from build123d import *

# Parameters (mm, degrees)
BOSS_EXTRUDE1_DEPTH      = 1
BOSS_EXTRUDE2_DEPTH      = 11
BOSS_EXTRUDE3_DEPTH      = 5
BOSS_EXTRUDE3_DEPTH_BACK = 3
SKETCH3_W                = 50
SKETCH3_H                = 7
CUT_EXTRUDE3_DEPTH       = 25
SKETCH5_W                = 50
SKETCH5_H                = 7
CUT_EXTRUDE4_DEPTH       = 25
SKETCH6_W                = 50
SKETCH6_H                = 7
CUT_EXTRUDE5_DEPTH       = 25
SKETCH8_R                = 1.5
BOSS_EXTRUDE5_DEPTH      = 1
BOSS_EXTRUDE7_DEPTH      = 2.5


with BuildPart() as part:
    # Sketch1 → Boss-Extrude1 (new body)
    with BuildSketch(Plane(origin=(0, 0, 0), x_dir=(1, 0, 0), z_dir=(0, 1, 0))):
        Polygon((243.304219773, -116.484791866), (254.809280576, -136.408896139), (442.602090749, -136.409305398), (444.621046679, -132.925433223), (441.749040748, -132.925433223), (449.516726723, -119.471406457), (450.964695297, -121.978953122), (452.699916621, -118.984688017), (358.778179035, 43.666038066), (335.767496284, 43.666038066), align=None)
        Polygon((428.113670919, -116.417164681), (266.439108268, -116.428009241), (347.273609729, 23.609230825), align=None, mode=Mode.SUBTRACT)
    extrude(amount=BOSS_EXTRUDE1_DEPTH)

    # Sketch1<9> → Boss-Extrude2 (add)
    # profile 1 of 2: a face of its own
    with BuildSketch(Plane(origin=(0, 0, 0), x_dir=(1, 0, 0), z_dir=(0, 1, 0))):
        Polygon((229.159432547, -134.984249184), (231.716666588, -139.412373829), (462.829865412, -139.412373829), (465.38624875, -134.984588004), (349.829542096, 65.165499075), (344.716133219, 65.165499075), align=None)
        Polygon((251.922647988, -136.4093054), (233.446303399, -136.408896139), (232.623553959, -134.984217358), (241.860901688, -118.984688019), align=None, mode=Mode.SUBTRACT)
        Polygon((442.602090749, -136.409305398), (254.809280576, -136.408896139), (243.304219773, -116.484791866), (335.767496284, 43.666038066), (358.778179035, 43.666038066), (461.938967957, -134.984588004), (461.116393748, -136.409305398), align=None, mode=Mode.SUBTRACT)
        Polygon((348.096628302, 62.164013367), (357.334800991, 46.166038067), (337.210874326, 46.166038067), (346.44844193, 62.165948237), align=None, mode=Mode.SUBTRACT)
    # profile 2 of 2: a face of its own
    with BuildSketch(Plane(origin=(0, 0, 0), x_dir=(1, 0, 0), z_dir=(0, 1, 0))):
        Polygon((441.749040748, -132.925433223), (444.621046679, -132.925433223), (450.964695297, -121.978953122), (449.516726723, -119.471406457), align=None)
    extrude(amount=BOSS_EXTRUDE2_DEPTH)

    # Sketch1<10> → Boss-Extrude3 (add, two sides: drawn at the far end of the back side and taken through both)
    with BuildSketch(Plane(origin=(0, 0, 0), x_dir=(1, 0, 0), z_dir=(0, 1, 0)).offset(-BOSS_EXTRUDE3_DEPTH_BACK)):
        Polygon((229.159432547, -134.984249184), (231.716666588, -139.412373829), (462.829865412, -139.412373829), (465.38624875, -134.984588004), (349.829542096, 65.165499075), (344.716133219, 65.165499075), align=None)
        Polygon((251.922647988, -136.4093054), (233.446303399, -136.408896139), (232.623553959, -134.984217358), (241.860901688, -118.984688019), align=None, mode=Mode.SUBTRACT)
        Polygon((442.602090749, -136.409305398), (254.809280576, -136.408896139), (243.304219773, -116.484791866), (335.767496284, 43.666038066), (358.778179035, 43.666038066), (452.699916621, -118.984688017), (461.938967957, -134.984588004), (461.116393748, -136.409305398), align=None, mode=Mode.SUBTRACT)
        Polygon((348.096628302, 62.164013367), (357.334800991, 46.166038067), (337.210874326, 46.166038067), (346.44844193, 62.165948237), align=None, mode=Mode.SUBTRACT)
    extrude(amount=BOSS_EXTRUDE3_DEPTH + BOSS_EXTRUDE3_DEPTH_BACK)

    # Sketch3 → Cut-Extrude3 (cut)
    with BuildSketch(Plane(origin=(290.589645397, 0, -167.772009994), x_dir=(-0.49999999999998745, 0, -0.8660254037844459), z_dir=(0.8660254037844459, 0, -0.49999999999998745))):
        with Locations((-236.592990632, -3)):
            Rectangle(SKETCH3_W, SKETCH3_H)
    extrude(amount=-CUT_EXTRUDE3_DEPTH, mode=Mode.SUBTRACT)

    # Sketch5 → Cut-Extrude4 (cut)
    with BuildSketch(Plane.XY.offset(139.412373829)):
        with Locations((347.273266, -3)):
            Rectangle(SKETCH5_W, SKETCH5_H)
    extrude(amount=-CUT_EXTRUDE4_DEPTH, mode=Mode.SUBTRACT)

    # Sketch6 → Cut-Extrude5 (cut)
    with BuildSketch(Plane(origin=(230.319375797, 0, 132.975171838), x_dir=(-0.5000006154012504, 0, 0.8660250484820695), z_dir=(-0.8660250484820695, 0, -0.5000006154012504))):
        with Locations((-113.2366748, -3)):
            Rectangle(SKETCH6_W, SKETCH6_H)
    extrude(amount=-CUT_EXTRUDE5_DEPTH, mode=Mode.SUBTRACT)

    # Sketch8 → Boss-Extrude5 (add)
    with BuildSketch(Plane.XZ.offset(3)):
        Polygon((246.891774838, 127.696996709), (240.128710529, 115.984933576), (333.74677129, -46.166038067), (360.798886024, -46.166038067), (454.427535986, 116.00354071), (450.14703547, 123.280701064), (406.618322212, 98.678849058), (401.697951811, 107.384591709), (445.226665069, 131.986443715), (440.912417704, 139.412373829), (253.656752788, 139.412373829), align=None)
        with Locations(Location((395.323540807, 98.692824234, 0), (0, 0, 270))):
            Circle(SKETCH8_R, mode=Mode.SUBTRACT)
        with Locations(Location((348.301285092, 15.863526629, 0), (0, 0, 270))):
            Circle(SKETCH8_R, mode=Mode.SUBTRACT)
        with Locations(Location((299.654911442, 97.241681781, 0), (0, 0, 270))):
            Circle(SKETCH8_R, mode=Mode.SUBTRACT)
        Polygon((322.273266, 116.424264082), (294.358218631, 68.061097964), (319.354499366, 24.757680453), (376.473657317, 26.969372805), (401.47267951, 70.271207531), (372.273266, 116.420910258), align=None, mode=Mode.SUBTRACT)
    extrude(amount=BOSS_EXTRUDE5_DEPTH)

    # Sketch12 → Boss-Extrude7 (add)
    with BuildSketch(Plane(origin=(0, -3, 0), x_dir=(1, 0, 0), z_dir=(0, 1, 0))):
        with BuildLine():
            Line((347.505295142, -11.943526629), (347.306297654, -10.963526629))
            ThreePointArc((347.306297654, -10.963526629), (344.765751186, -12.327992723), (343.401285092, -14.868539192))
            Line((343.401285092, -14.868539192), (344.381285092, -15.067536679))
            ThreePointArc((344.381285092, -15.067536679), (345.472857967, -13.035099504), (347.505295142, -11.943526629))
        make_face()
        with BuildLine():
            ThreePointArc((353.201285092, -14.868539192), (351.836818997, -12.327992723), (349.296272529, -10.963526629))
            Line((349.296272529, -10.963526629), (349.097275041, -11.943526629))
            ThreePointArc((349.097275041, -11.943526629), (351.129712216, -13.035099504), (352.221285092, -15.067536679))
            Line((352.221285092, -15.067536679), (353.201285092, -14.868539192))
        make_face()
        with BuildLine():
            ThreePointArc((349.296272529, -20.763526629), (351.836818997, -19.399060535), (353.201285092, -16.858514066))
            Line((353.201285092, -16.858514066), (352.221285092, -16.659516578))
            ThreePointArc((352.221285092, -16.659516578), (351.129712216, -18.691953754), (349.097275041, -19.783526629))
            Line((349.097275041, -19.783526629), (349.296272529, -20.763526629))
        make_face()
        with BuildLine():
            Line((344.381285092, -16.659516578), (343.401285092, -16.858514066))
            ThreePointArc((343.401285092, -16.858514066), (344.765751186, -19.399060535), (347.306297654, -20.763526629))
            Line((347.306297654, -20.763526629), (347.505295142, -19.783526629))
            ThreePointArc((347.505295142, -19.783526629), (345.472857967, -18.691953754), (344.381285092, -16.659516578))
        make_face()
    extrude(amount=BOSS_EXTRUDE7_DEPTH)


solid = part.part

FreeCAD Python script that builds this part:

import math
import FreeCAD as App
import Part
import Sketcher
Q = App.Units.Quantity


def add_polygon(sketch, points):
    """Adds a closed chain of lines whose ends are joined by coincident constraints."""
    first, n = sketch.GeometryCount, len(points)
    for a, b in zip(points, points[1:] + points[:1]):
        sketch.addGeometry(Part.LineSegment(App.Vector(*a, 0), App.Vector(*b, 0)), False)
    for i in range(n):
        sketch.addConstraint(Sketcher.Constraint("Coincident", first + i, 2, first + (i + 1) % n, 1))

doc = App.newDocument("Part")
body = doc.addObject("PartDesign::Body", "Body")

# Sketch on XZ plane
sketch1 = doc.addObject("Sketcher::SketchObject", "Sketch")
body.addObject(sketch1)
sketch1.AttachmentSupport = (doc.XZ_Plane, [""])
sketch1.MapMode = "FlatFace"
add_polygon(sketch1, [(243.30422, 116.484792), (254.809281, 136.408896), (442.602091, 136.409305), (444.621047, 132.925433), (441.749041, 132.925433), (449.516727, 119.471406), (450.964695, 121.978953), (452.699917, 118.984688), (358.778179, -43.666038), (335.767496, -43.666038)])  # lines 0-9
add_polygon(sketch1, [(347.27361, -23.609231), (428.113671, 116.417165), (266.439108, 116.428009)])  # lines 10-12
sketch1.addConstraint([
    Sketcher.Constraint("Horizontal", 3),
    Sketcher.Constraint("Horizontal", 8),
    Sketcher.Constraint("Parallel", 0, 5),
    Sketcher.Constraint("Parallel", 2, 6),
    Sketcher.Constraint("Parallel", 5, 7),
    Sketcher.Constraint("Parallel", 4, 9),
    Sketcher.Constraint("Angle", 4, Q("-60 deg")),
    Sketcher.Constraint("DistanceY", 4, 2, 1, 2, Q("16.937899 mm")),
    Sketcher.Constraint("DistanceX", 8, 2, 5, 2, Q("115.197199 mm")),
    Sketcher.Constraint("DistanceX", 11, 2, 12, 2, Q("80.834501 mm")),
    Sketcher.Constraint("Distance", 0, Q("23.007311 mm")),
    Sketcher.Constraint("Distance", 1, Q("187.79281 mm")),
    Sketcher.Constraint("Distance", 4, Q("15.535372 mm")),
    Sketcher.Constraint("Distance", 7, Q("187.82053 mm")),
    Sketcher.Constraint("Distance", 12, Q("161.693059 mm")),
    Sketcher.Constraint("DistanceX", 3, 2, 3, 1, Q("2.872006 mm")),
    Sketcher.Constraint("DistanceX", 8, 2, 8, 1, Q("23.010683 mm")),
    Sketcher.Constraint("DistanceX", -1, 1, 0, 2, Q("254.809281 mm")),
    Sketcher.Constraint("DistanceX", -1, 1, 3, 2, Q("441.749041 mm")),
    Sketcher.Constraint("DistanceY", -1, 1, 6, 2, Q("118.984688 mm")),
    Sketcher.Constraint("DistanceX", -1, 1, 7, 2, Q("358.778179 mm")),
    Sketcher.Constraint("DistanceY", 7, 2, -1, 1, Q("43.666038 mm")),
    Sketcher.Constraint("DistanceX", -1, 1, 10, 2, Q("428.113671 mm")),
    Sketcher.Constraint("DistanceX", -1, 1, 11, 2, Q("266.439108 mm")),
    Sketcher.Constraint("DistanceY", -1, 1, 11, 2, Q("116.428009 mm")),
    Sketcher.Constraint("DistanceY", 10, 2, 3, 2, Q("16.508269 mm")),
])
pad1 = doc.addObject("PartDesign::Pad", "Pad")
body.addObject(pad1)
pad1.Profile = sketch1
pad1.Length = 1
pad1.Reversed = True

# Sketch on XZ plane
sketch2 = doc.addObject("Sketcher::SketchObject", "Sketch001")
body.addObject(sketch2)
sketch2.AttachmentSupport = (doc.XZ_Plane, [""])
sketch2.MapMode = "FlatFace"
add_polygon(sketch2, [(229.159433, 134.984249), (231.716667, 139.412374), (462.829865, 139.412374), (465.386249, 134.984588), (349.829542, -65.165499), (344.716133, -65.165499)])  # lines 0-5
add_polygon(sketch2, [(241.860902, 118.984688), (251.922648, 136.409305), (233.446303, 136.408896), (232.623554, 134.984217)])  # lines 6-9
add_polygon(sketch2, [(461.116394, 136.409305), (442.602091, 136.409305), (254.809281, 136.408896), (243.30422, 116.484792), (335.767496, -43.666038), (358.778179, -43.666038), (461.938968, 134.984588)])  # lines 10-16
add_polygon(sketch2, [(346.448442, -62.165948), (348.096628, -62.164013), (357.334801, -46.166038), (337.210874, -46.166038)])  # lines 17-20
add_polygon(sketch2, [(441.749041, 132.925433), (444.621047, 132.925433), (450.964695, 121.978953), (449.516727, 119.471406)])  # lines 21-24
sketch2.addConstraint([
    Sketcher.Constraint("Horizontal", 1),
    Sketcher.Constraint("Horizontal", 4),
    Sketcher.Constraint("Horizontal", 10),
    Sketcher.Constraint("Horizontal", 14),
    Sketcher.Constraint("Horizontal", 19),
    Sketcher.Constraint("Horizontal", 21),
    Sketcher.Constraint("DistanceY", 18, 2, 14, 2, Q("2.5 mm")),
    Sketcher.Constraint("DistanceX", 1, 1, 1, 2, Q("231.113199 mm")),
    Sketcher.Constraint("DistanceX", 4, 2, 4, 1, Q("5.113409 mm")),
    Sketcher.Constraint("DistanceY", 3, 2, -1, 1, Q("65.165499 mm")),
    Sketcher.Constraint("DistanceX", -1, 1, 9, 2, Q("241.860902 mm")),
    Sketcher.Constraint("DistanceX", -1, 1, 18, 2, Q("357.334801 mm")),
    Sketcher.Constraint("DistanceX", 5, 2, 4, 2, Q("115.556701 mm")),
    Sketcher.Constraint("DistanceX", 6, 2, 2, 2, Q("213.463601 mm")),
    Sketcher.Constraint("DistanceX", 7, 2, 9, 2, Q("8.414598 mm")),
    Sketcher.Constraint("DistanceX", 20, 2, 3, 2, Q("3.3811 mm")),
    Sketcher.Constraint("DistanceX", 22, 2, 16, 2, Q("10.151698 mm")),
    Sketcher.Constraint("DistanceY", 23, 2, 10, 2, Q("16.937899 mm")),
    Sketcher.Constraint("Distance", 11, Q("187.79281 mm")),
    Sketcher.Constraint("Distance", 12, Q("23.007311 mm")),
    Sketcher.Constraint("Distance", 16, Q("1.645129 mm")),
    Sketcher.Constraint("Distance", 18, Q("18.473739 mm")),
    Sketcher.Constraint("Distance", 22, Q("12.651771 mm")),
    Sketcher.Constraint("Distance", 24, Q("15.535372 mm")),
    Sketcher.Constraint("DistanceX", 10, 2, 10, 1, Q("18.514303 mm")),
    Sketcher.Constraint("DistanceX", 14, 1, 14, 2, Q("23.010683 mm")),
    Sketcher.Constraint("DistanceX", 19, 2, 19, 1, Q("20.123927 mm")),
    Sketcher.Constraint("DistanceX", 21, 1, 21, 2, Q("2.872006 mm")),
    Sketcher.Constraint("DistanceX", -1, 1, 2, 2, Q("465.386249 mm")),
    Sketcher.Constraint("DistanceY", -1, 1, 2, 2, Q("134.984588 mm")),
    Sketcher.Constraint("DistanceY", -1, 1, 5, 2, Q("134.984249 mm")),
    Sketcher.Constraint("DistanceY", -1, 1, 9, 2, Q("118.984688 mm")),
    Sketcher.Constraint("DistanceX", -1, 1, 10, 2, Q("442.602091 mm")),
    Sketcher.Constraint("DistanceX", -1, 1, 12, 2, Q("243.30422 mm")),
    Sketcher.Constraint("DistanceY", -1, 1, 12, 2, Q("116.484792 mm")),
    Sketcher.Constraint("DistanceY", 13, 2, -1, 1, Q("43.666038 mm")),
    Sketcher.Constraint("DistanceX", -1, 1, 14, 2, Q("358.778179 mm")),
    Sketcher.Constraint("DistanceY", -1, 1, 15, 2, Q("134.984588 mm")),
    Sketcher.Constraint("DistanceX", -1, 1, 17, 2, Q("348.096628 mm")),
    Sketcher.Constraint("DistanceX", -1, 1, 20, 2, Q("346.448442 mm")),
    Sketcher.Constraint("DistanceY", 20, 2, -1, 1, Q("62.165948 mm")),
    Sketcher.Constraint("DistanceX", -1, 1, 24, 2, Q("441.749041 mm")),
    Sketcher.Constraint("DistanceX", 0, 2, 6, 2, Q("20.205981 mm")),
    Sketcher.Constraint("DistanceY", 6, 2, 0, 2, Q("3.003068 mm")),
    Sketcher.Constraint("DistanceY", 7, 2, 6, 2, Q("0.000409 mm")),
    Sketcher.Constraint("DistanceX", 8, 2, 7, 2, Q("0.822749 mm")),
    Sketcher.Constraint("DistanceY", 8, 2, 7, 2, Q("1.424679 mm")),
    Sketcher.Constraint("DistanceY", 9, 2, 8, 2, Q("15.999529 mm")),
    Sketcher.Constraint("DistanceY", 10, 2, 1, 2, Q("3.003068 mm")),
    Sketcher.Constraint("DistanceY", 21, 2, 1, 2, Q("6.486941 mm")),
])
pad2 = doc.addObject("PartDesign::Pad", "Pad001")
body.addObject(pad2)
pad2.Profile = sketch2
pad2.Length = 11
pad2.Reversed = True

# Sketch on XZ plane
sketch3 = doc.addObject("Sketcher::SketchObject", "Sketch002")
body.addObject(sketch3)
sketch3.AttachmentSupport = (doc.XZ_Plane, [""])
sketch3.MapMode = "FlatFace"
add_polygon(sketch3, [(229.159433, 134.984249), (231.716667, 139.412374), (462.829865, 139.412374), (465.386249, 134.984588), (349.829542, -65.165499), (344.716133, -65.165499)])  # lines 0-5
add_polygon(sketch3, [(241.860902, 118.984688), (251.922648, 136.409305), (233.446303, 136.408896), (232.623554, 134.984217)])  # lines 6-9
add_polygon(sketch3, [(461.116394, 136.409305), (442.602091, 136.409305), (254.809281, 136.408896), (243.30422, 116.484792), (335.767496, -43.666038), (358.778179, -43.666038), (452.699917, 118.984688), (461.938968, 134.984588)])  # lines 10-17
add_polygon(sketch3, [(346.448442, -62.165948), (348.096628, -62.164013), (357.334801, -46.166038), (337.210874, -46.166038)])  # lines 18-21
sketch3.addConstraint([
    Sketcher.Constraint("Horizontal", 1),
    Sketcher.Constraint("Horizontal", 4),
    Sketcher.Constraint("Horizontal", 10),
    Sketcher.Constraint("Horizontal", 14),
    Sketcher.Constraint("Horizontal", 20),
    Sketcher.Constraint("DistanceY", 19, 2, 14, 2, Q("2.5 mm")),
    Sketcher.Constraint("DistanceX", 1, 1, 1, 2, Q("231.113199 mm")),
    Sketcher.Constraint("DistanceX", 4, 2, 4, 1, Q("5.113409 mm")),
    Sketcher.Constraint("DistanceY", 3, 2, -1, 1, Q("65.165499 mm")),
    Sketcher.Constraint("DistanceX", -1, 1, 9, 2, Q("241.860902 mm")),
    Sketcher.Constraint("DistanceX", -1, 1, 19, 2, Q("357.334801 mm")),
    Sketcher.Constraint("DistanceX", 5, 2, 4, 2, Q("115.556701 mm")),
    Sketcher.Constraint("DistanceX", 6, 2, 2, 2, Q("213.463601 mm")),
    Sketcher.Constraint("DistanceX", 7, 2, 9, 2, Q("8.414598 mm")),
    Sketcher.Constraint("DistanceY", 15, 2, 2, 2, Q("15.9999 mm")),
    Sketcher.Constraint("DistanceY", 15, 2, 16, 2, Q("15.9999 mm")),
    Sketcher.Constraint("DistanceX", 21, 2, 3, 2, Q("3.3811 mm")),
    Sketcher.Constraint("Distance", 11, Q("187.79281 mm")),
    Sketcher.Constraint("Distance", 12, Q("23.007311 mm")),
    Sketcher.Constraint("Distance", 15, Q("187.82053 mm")),
    Sketcher.Constraint("Distance", 17, Q("1.645129 mm")),
    Sketcher.Constraint("Distance", 19, Q("18.473739 mm")),
    Sketcher.Constraint("DistanceX", 10, 2, 10, 1, Q("18.514303 mm")),
    Sketcher.Constraint("DistanceX", 14, 1, 14, 2, Q("23.010683 mm")),
    Sketcher.Constraint("DistanceX", 20, 2, 20, 1, Q("20.123927 mm")),
    Sketcher.Constraint("DistanceX", -1, 1, 2, 2, Q("465.386249 mm")),
    Sketcher.Constraint("DistanceY", -1, 1, 2, 2, Q("134.984588 mm")),
    Sketcher.Constraint("DistanceY", -1, 1, 5, 2, Q("134.984249 mm")),
    Sketcher.Constraint("DistanceY", -1, 1, 9, 2, Q("118.984688 mm")),
    Sketcher.Constraint("DistanceX", -1, 1, 10, 2, Q("442.602091 mm")),
    Sketcher.Constraint("DistanceX", -1, 1, 12, 2, Q("243.30422 mm")),
    Sketcher.Constraint("DistanceY", -1, 1, 12, 2, Q("116.484792 mm")),
    Sketcher.Constraint("DistanceY", 13, 2, -1, 1, Q("43.666038 mm")),
    Sketcher.Constraint("DistanceX", -1, 1, 14, 2, Q("358.778179 mm")),
    Sketcher.Constraint("DistanceX", -1, 1, 18, 2, Q("348.096628 mm")),
    Sketcher.Constraint("DistanceX", -1, 1, 21, 2, Q("346.448442 mm")),
    Sketcher.Constraint("DistanceY", 21, 2, -1, 1, Q("62.165948 mm")),
    Sketcher.Constraint("DistanceX", 0, 2, 6, 2, Q("20.205981 mm")),
    Sketcher.Constraint("DistanceY", 6, 2, 0, 2, Q("3.003068 mm")),
    Sketcher.Constraint("DistanceY", 7, 2, 6, 2, Q("0.000409 mm")),
    Sketcher.Constraint("DistanceX", 8, 2, 7, 2, Q("0.822749 mm")),
    Sketcher.Constraint("DistanceY", 8, 2, 7, 2, Q("1.424679 mm")),
    Sketcher.Constraint("DistanceY", 9, 2, 8, 2, Q("15.999529 mm")),
    Sketcher.Constraint("DistanceY", 10, 2, 1, 2, Q("3.003068 mm")),
])
pad3 = doc.addObject("PartDesign::Pad", "Pad002")
body.addObject(pad3)
pad3.Profile = sketch3
pad3.Type = "TwoLengths"
pad3.Length = 5
pad3.Length2 = 3
pad3.Reversed = True

# Sketch on an angled plane
sketch4 = doc.addObject("Sketcher::SketchObject", "Sketch003")
body.addObject(sketch4)
sketch4.Placement = App.Placement(App.Vector(290.589645, 0, -167.77201), App.Rotation(App.Vector(-0.5, 0, -0.866025404), App.Vector(0, 1, 0), App.Vector(0.866025404, 0, -0.5), "ZXY"))
add_polygon(sketch4, [(-262, 0), (-262, -7), (-212, -7), (-212, 0)])  # lines 0-3
sketch4.addConstraint([
    Sketcher.Constraint("Vertical", 0),
    Sketcher.Constraint("Horizontal", 1),
    Sketcher.Constraint("Vertical", 2),
    Sketcher.Constraint("Horizontal", 3),
    Sketcher.Constraint("DistanceX", 1, 1, 1, 2, Q("50 mm")),
    Sketcher.Constraint("DistanceY", 0, 2, 0, 1, Q("7 mm")),
    Sketcher.Constraint("DistanceY", 0, 2, -1, 1, Q("6.5 mm")),
    Sketcher.Constraint("DistanceX", 0, 2, -1, 1, Q("261.592991 mm")),
])
pocket1 = doc.addObject("PartDesign::Pocket", "Pocket")
body.addObject(pocket1)
pocket1.Profile = sketch4
pocket1.Length = 25

# Sketch on XY plane
sketch5 = doc.addObject("Sketcher::SketchObject", "Sketch004")
body.addObject(sketch5)
sketch5.AttachmentSupport = (doc.XY_Plane, [""])
sketch5.MapMode = "FlatFace"
sketch5.AttachmentOffset = App.Placement(App.Vector(0, 0, 139.412374), App.Rotation())
add_polygon(sketch5, [(322, 0), (322, -6), (372, -6), (372, 0)])  # lines 0-3
sketch5.addConstraint([
    Sketcher.Constraint("Vertical", 0),
    Sketcher.Constraint("Horizontal", 1),
    Sketcher.Constraint("Vertical", 2),
    Sketcher.Constraint("Horizontal", 3),
    Sketcher.Constraint("DistanceX", 1, 1, 1, 2, Q("50 mm")),
    Sketcher.Constraint("DistanceY", 0, 2, 0, 1, Q("7 mm")),
    Sketcher.Constraint("DistanceY", 0, 2, -1, 1, Q("6.5 mm")),
    Sketcher.Constraint("DistanceX", -1, 1, 0, 2, Q("322.273266 mm")),
])
pocket2 = doc.addObject("PartDesign::Pocket", "Pocket001")
body.addObject(pocket2)
pocket2.Profile = sketch5
pocket2.Length = 25

# Sketch on an angled plane
sketch6 = doc.addObject("Sketcher::SketchObject", "Sketch005")
body.addObject(sketch6)
sketch6.Placement = App.Placement(App.Vector(230.319376, 0, 132.975172), App.Rotation(App.Vector(-0.500000615, 0, 0.866025048), App.Vector(0, 0.999999999, 0), App.Vector(-0.866025048, 0, -0.500000615), "ZXY"))
add_polygon(sketch6, [(-138, 0), (-138, -6), (-88, -6), (-88, 0)])  # lines 0-3
sketch6.addConstraint([
    Sketcher.Constraint("Vertical", 0),
    Sketcher.Constraint("Horizontal", 1),
    Sketcher.Constraint("Vertical", 2),
    Sketcher.Constraint("Horizontal", 3),
    Sketcher.Constraint("DistanceX", 1, 1, 1, 2, Q("50 mm")),
    Sketcher.Constraint("DistanceY", 0, 2, 0, 1, Q("7 mm")),
    Sketcher.Constraint("DistanceY", 0, 2, -1, 1, Q("6.5 mm")),
    Sketcher.Constraint("DistanceX", 0, 2, -1, 1, Q("138.236675 mm")),
])
pocket3 = doc.addObject("PartDesign::Pocket", "Pocket002")
body.addObject(pocket3)
pocket3.Profile = sketch6
pocket3.Length = 25

# Sketch on XZ plane
sketch7 = doc.addObject("Sketcher::SketchObject", "Sketch006")
body.addObject(sketch7)
sketch7.AttachmentSupport = (doc.XZ_Plane, [""])
sketch7.MapMode = "FlatFace"
sketch7.AttachmentOffset = App.Placement(App.Vector(0, 0, 3), App.Rotation())
add_polygon(sketch7, [(246.9, 127.7), (240.1, 116), (333.7, -46.2), (360.8, -46.2), (454.4, 116), (450.1, 123.3), (406.6, 98.7), (401.7, 107.4), (445.2, 132), (440.9, 139.4), (253.7, 139.4)])  # lines 0-10
sketch7.addGeometry(Part.Circle(App.Vector(348.3, 15.9, 0), App.Vector(0, 0, 1), 1.5), False)  # 11
sketch7.addGeometry(Part.Circle(App.Vector(299.7, 97.2, 0), App.Vector(0, 0, 1), 1.5), False)  # 12
add_polygon(sketch7, [(294.4, 68.1), (322.3, 116.4), (372.3, 116.4), (401.5, 70.3), (376.5, 27), (319.4, 24.8)])  # lines 13-18
sketch7.addGeometry(Part.Circle(App.Vector(395.3, 98.7, 0), App.Vector(0, 0, 1), 1.5), False)  # 19
sketch7.addConstraint([
    Sketcher.Constraint("Horizontal", 2),
    Sketcher.Constraint("Horizontal", 9),
    Sketcher.Constraint("Equal", 11, 12),
    Sketcher.Constraint("Equal", 12, 19),
    Sketcher.Constraint("Perpendicular", 5, 6),
    Sketcher.Constraint("Perpendicular", 6, 7),
    Sketcher.Constraint("Parallel", 0, 10),
    Sketcher.Constraint("Equal", 5, 7),
    Sketcher.Constraint("Equal", 7, 14),
    Sketcher.Constraint("Equal", 14, 16),
    Sketcher.Constraint("Equal", 16, 18),
    Sketcher.Constraint("Diameter", 11, Q("3 mm")),
    Sketcher.Constraint("Angle", 3, Q("60 deg")),
    Sketcher.Constraint("Distance", 5, Q("50 mm")),
    Sketcher.Constraint("Distance", 6, Q("10 mm")),
    Sketcher.Constraint("DistanceY", 17, 2, 12, 3, Q("72.484001 mm")),
    Sketcher.Constraint("Distance", 3, Q("187.2573 mm")),
    Sketcher.Constraint("Distance", 8, Q("8.588199 mm")),
    Sketcher.Constraint("DistanceY", -1, 1, 4, 2, Q("123.280701 mm")),
    Sketcher.Constraint("DistanceX", -1, 1, 17, 2, Q("319.354499 mm")),
    Sketcher.Constraint("DistanceX", 0, 2, 12, 3, Q("59.526201 mm")),
    Sketcher.Constraint("DistanceX", 11, 3, 2, 2, Q("12.497601 mm")),
    Sketcher.Constraint("DistanceX", 4, 2, 3, 2, Q("4.280501 mm")),
    Sketcher.Constraint("DistanceX", 9, 2, 6, 2, Q("148.041199 mm")),
    Sketcher.Constraint("Distance", 1, Q("187.235891 mm")),
    Sketcher.Constraint("Distance", 15, Q("54.611362 mm")),
    Sketcher.Constraint("Distance", 17, Q("57.161961 mm")),
    Sketcher.Constraint("DistanceX", 2, 1, 2, 2, Q("27.052115 mm")),
    Sketcher.Constraint("DistanceX", 9, 2, 9, 1, Q("187.255665 mm")),
    Sketcher.Constraint("DistanceX", -1, 1, 12, 3, Q("299.654911 mm")),
    Sketcher.Constraint("DistanceY", -1, 1, 12, 3, Q("97.241682 mm")),
    Sketcher.Constraint("DistanceX", -1, 1, 19, 3, Q("395.323541 mm")),
    Sketcher.Constraint("DistanceX", -1, 1, 1, 2, Q("333.746771 mm")),
    Sketcher.Constraint("DistanceY", 1, 2, -1, 1, Q("46.166038 mm")),
    Sketcher.Constraint("DistanceY", -1, 1, 5, 2, Q("98.678849 mm")),
    Sketcher.Constraint("DistanceY", -1, 1, 14, 2, Q("116.42091 mm")),
    Sketcher.Constraint("DistanceX", -1, 1, 15, 2, Q("401.47268 mm")),
    Sketcher.Constraint("DistanceX", -1, 1, 18, 2, Q("294.358219 mm")),
    Sketcher.Constraint("DistanceY", 19, 3, 0, 2, Q("17.292109 mm")),
    Sketcher.Constraint("DistanceX", 10, 2, 11, 3, Q("101.40951 mm")),
    Sketcher.Constraint("DistanceY", 11, 3, 10, 2, Q("111.83347 mm")),
    Sketcher.Constraint("DistanceY", 13, 2, 9, 2, Q("22.98811 mm")),
    Sketcher.Constraint("DistanceX", 10, 2, 13, 2, Q("75.381491 mm")),
])
pad4 = doc.addObject("PartDesign::Pad", "Pad003")
body.addObject(pad4)
pad4.Profile = sketch7
pad4.Length = 1

# Sketch on XZ plane
sketch8 = doc.addObject("Sketcher::SketchObject", "Sketch007")
body.addObject(sketch8)
sketch8.AttachmentSupport = (doc.XZ_Plane, [""])
sketch8.MapMode = "FlatFace"
sketch8.AttachmentOffset = App.Placement(App.Vector(0, 0, 3), App.Rotation())
sketch8.addGeometry([
    Part.LineSegment(App.Vector(347.5, 11.9, 0), App.Vector(347.3, 11, 0)),  # 0
    Part.ArcOfCircle(Part.Circle(App.Vector(348.3, 15.9, 0), App.Vector(0, 0, 1), 5), math.radians(-169), math.radians(-101)),  # 1
    Part.LineSegment(App.Vector(343.4, 14.9, 0), App.Vector(344.4, 15.1, 0)),  # 2
    Part.ArcOfCircle(Part.Circle(App.Vector(348.3, 15.9, 0), App.Vector(0, 0, 1), 4), math.radians(-169), math.radians(-101)),  # 3
    Part.ArcOfCircle(Part.Circle(App.Vector(348.3, 15.9, 0), App.Vector(0, 0, 1), 5), math.radians(-79), math.radians(-11)),  # 4
    Part.LineSegment(App.Vector(349.3, 11, 0), App.Vector(349.1, 11.9, 0)),  # 5
    Part.ArcOfCircle(Part.Circle(App.Vector(348.3, 15.9, 0), App.Vector(0, 0, 1), 4), math.radians(-79), math.radians(-11)),  # 6
    Part.LineSegment(App.Vector(352.2, 15.1, 0), App.Vector(353.2, 14.9, 0)),  # 7
    Part.ArcOfCircle(Part.Circle(App.Vector(348.3, 15.9, 0), App.Vector(0, 0, 1), 5), math.radians(11), math.radians(79)),  # 8
    Part.LineSegment(App.Vector(353.2, 16.9, 0), App.Vector(352.2, 16.7, 0)),  # 9
    Part.ArcOfCircle(Part.Circle(App.Vector(348.3, 15.9, 0), App.Vector(0, 0, 1), 4), math.radians(11), math.radians(79)),  # 10
    Part.LineSegment(App.Vector(349.1, 19.8, 0), App.Vector(349.3, 20.8, 0)),  # 11
    Part.LineSegment(App.Vector(344.4, 16.7, 0), App.Vector(343.4, 16.9, 0)),  # 12
    Part.ArcOfCircle(Part.Circle(App.Vector(348.3, 15.9, 0), App.Vector(0, 0, 1), 5), math.radians(101), math.radians(169)),  # 13
    Part.LineSegment(App.Vector(347.3, 20.8, 0), App.Vector(347.5, 19.8, 0)),  # 14
    Part.ArcOfCircle(Part.Circle(App.Vector(348.3, 15.9, 0), App.Vector(0, 0, 1), 4), math.radians(101), math.radians(169)),  # 15
], False)
sketch8.addConstraint([
    Sketcher.Constraint("Coincident", 0, 2, 1, 2),
    Sketcher.Constraint("Coincident", 1, 1, 2, 1),
    Sketcher.Constraint("Coincident", 2, 2, 3, 1),
    Sketcher.Constraint("Coincident", 3, 2, 0, 1),
    Sketcher.Constraint("Coincident", 4, 1, 5, 1),
    Sketcher.Constraint("Coincident", 5, 2, 6, 1),
    Sketcher.Constraint("Coincident", 6, 2, 7, 1),
    Sketcher.Constraint("Coincident", 7, 2, 4, 2),
    Sketcher.Constraint("Coincident", 8, 1, 9, 1),
    Sketcher.Constraint("Coincident", 9, 2, 10, 1),
    Sketcher.Constraint("Coincident", 10, 2, 11, 1),
    Sketcher.Constraint("Coincident", 11, 2, 8, 2),
    Sketcher.Constraint("Coincident", 12, 2, 13, 2),
    Sketcher.Constraint("Coincident", 13, 1, 14, 1),
    Sketcher.Constraint("Coincident", 14, 2, 15, 1),
    Sketcher.Constraint("Coincident", 15, 2, 12, 1),
    Sketcher.Constraint("Coincident", 3, 3, 1, 3),
    Sketcher.Constraint("Coincident", 4, 3, 1, 3),
    Sketcher.Constraint("Coincident", 6, 3, 1, 3),
    Sketcher.Constraint("Coincident", 8, 3, 1, 3),
    Sketcher.Constraint("Coincident", 10, 3, 1, 3),
    Sketcher.Constraint("Coincident", 13, 3, 1, 3),
    Sketcher.Constraint("Coincident", 15, 3, 1, 3),
    Sketcher.Constraint("Equal", 1, 4),
    Sketcher.Constraint("Equal", 3, 6),
    Sketcher.Constraint("Equal", 4, 8),
    Sketcher.Constraint("Equal", 6, 10),
    Sketcher.Constraint("Equal", 8, 13),
    Sketcher.Constraint("Equal", 10, 15),
    Sketcher.Constraint("Perpendicular", 2, 5),
    Sketcher.Constraint("Perpendicular", 0, 7),
    Sketcher.Constraint("Perpendicular", 5, 9),
    Sketcher.Constraint("Perpendicular", 7, 11),
    Sketcher.Constraint("Perpendicular", 11, 12),
    Sketcher.Constraint("Perpendicular", 9, 14),
    Sketcher.Constraint("Horizontal", 0, 2, 4, 1),
    Sketcher.Constraint("Horizontal", 3, 2, 5, 2),
    Sketcher.Constraint("Horizontal", 2, 2, 6, 2),
    Sketcher.Constraint("Horizontal", 8, 1, 12, 2),
    Sketcher.Constraint("Horizontal", 11, 2, 13, 1),
    Sketcher.Constraint("Vertical", 7, 2, 8, 1),
    Sketcher.Constraint("Vertical", 5, 2, 10, 2),
    Sketcher.Constraint("Radius", 1, Q("5 mm")),
    Sketcher.Constraint("Radius", 3, Q("4 mm")),
    Sketcher.Constraint("DistanceY", 0, 2, 8, 3, Q("4.9 mm")),
    Sketcher.Constraint("DistanceX", 1, 1, 8, 3, Q("4.9 mm")),
    Sketcher.Constraint("DistanceX", 1, 1, 2, 2, Q("0.98 mm")),
    Sketcher.Constraint("DistanceY", -1, 1, 1, 1, Q("14.868539 mm")),
    Sketcher.Constraint("DistanceX", -1, 1, 1, 3, Q("348.301285 mm")),
])
pad5 = doc.addObject("PartDesign::Pad", "Pad004")
body.addObject(pad5)
pad5.Profile = sketch8
pad5.Length = 2.5
pad5.Reversed = True

doc.recompute()
